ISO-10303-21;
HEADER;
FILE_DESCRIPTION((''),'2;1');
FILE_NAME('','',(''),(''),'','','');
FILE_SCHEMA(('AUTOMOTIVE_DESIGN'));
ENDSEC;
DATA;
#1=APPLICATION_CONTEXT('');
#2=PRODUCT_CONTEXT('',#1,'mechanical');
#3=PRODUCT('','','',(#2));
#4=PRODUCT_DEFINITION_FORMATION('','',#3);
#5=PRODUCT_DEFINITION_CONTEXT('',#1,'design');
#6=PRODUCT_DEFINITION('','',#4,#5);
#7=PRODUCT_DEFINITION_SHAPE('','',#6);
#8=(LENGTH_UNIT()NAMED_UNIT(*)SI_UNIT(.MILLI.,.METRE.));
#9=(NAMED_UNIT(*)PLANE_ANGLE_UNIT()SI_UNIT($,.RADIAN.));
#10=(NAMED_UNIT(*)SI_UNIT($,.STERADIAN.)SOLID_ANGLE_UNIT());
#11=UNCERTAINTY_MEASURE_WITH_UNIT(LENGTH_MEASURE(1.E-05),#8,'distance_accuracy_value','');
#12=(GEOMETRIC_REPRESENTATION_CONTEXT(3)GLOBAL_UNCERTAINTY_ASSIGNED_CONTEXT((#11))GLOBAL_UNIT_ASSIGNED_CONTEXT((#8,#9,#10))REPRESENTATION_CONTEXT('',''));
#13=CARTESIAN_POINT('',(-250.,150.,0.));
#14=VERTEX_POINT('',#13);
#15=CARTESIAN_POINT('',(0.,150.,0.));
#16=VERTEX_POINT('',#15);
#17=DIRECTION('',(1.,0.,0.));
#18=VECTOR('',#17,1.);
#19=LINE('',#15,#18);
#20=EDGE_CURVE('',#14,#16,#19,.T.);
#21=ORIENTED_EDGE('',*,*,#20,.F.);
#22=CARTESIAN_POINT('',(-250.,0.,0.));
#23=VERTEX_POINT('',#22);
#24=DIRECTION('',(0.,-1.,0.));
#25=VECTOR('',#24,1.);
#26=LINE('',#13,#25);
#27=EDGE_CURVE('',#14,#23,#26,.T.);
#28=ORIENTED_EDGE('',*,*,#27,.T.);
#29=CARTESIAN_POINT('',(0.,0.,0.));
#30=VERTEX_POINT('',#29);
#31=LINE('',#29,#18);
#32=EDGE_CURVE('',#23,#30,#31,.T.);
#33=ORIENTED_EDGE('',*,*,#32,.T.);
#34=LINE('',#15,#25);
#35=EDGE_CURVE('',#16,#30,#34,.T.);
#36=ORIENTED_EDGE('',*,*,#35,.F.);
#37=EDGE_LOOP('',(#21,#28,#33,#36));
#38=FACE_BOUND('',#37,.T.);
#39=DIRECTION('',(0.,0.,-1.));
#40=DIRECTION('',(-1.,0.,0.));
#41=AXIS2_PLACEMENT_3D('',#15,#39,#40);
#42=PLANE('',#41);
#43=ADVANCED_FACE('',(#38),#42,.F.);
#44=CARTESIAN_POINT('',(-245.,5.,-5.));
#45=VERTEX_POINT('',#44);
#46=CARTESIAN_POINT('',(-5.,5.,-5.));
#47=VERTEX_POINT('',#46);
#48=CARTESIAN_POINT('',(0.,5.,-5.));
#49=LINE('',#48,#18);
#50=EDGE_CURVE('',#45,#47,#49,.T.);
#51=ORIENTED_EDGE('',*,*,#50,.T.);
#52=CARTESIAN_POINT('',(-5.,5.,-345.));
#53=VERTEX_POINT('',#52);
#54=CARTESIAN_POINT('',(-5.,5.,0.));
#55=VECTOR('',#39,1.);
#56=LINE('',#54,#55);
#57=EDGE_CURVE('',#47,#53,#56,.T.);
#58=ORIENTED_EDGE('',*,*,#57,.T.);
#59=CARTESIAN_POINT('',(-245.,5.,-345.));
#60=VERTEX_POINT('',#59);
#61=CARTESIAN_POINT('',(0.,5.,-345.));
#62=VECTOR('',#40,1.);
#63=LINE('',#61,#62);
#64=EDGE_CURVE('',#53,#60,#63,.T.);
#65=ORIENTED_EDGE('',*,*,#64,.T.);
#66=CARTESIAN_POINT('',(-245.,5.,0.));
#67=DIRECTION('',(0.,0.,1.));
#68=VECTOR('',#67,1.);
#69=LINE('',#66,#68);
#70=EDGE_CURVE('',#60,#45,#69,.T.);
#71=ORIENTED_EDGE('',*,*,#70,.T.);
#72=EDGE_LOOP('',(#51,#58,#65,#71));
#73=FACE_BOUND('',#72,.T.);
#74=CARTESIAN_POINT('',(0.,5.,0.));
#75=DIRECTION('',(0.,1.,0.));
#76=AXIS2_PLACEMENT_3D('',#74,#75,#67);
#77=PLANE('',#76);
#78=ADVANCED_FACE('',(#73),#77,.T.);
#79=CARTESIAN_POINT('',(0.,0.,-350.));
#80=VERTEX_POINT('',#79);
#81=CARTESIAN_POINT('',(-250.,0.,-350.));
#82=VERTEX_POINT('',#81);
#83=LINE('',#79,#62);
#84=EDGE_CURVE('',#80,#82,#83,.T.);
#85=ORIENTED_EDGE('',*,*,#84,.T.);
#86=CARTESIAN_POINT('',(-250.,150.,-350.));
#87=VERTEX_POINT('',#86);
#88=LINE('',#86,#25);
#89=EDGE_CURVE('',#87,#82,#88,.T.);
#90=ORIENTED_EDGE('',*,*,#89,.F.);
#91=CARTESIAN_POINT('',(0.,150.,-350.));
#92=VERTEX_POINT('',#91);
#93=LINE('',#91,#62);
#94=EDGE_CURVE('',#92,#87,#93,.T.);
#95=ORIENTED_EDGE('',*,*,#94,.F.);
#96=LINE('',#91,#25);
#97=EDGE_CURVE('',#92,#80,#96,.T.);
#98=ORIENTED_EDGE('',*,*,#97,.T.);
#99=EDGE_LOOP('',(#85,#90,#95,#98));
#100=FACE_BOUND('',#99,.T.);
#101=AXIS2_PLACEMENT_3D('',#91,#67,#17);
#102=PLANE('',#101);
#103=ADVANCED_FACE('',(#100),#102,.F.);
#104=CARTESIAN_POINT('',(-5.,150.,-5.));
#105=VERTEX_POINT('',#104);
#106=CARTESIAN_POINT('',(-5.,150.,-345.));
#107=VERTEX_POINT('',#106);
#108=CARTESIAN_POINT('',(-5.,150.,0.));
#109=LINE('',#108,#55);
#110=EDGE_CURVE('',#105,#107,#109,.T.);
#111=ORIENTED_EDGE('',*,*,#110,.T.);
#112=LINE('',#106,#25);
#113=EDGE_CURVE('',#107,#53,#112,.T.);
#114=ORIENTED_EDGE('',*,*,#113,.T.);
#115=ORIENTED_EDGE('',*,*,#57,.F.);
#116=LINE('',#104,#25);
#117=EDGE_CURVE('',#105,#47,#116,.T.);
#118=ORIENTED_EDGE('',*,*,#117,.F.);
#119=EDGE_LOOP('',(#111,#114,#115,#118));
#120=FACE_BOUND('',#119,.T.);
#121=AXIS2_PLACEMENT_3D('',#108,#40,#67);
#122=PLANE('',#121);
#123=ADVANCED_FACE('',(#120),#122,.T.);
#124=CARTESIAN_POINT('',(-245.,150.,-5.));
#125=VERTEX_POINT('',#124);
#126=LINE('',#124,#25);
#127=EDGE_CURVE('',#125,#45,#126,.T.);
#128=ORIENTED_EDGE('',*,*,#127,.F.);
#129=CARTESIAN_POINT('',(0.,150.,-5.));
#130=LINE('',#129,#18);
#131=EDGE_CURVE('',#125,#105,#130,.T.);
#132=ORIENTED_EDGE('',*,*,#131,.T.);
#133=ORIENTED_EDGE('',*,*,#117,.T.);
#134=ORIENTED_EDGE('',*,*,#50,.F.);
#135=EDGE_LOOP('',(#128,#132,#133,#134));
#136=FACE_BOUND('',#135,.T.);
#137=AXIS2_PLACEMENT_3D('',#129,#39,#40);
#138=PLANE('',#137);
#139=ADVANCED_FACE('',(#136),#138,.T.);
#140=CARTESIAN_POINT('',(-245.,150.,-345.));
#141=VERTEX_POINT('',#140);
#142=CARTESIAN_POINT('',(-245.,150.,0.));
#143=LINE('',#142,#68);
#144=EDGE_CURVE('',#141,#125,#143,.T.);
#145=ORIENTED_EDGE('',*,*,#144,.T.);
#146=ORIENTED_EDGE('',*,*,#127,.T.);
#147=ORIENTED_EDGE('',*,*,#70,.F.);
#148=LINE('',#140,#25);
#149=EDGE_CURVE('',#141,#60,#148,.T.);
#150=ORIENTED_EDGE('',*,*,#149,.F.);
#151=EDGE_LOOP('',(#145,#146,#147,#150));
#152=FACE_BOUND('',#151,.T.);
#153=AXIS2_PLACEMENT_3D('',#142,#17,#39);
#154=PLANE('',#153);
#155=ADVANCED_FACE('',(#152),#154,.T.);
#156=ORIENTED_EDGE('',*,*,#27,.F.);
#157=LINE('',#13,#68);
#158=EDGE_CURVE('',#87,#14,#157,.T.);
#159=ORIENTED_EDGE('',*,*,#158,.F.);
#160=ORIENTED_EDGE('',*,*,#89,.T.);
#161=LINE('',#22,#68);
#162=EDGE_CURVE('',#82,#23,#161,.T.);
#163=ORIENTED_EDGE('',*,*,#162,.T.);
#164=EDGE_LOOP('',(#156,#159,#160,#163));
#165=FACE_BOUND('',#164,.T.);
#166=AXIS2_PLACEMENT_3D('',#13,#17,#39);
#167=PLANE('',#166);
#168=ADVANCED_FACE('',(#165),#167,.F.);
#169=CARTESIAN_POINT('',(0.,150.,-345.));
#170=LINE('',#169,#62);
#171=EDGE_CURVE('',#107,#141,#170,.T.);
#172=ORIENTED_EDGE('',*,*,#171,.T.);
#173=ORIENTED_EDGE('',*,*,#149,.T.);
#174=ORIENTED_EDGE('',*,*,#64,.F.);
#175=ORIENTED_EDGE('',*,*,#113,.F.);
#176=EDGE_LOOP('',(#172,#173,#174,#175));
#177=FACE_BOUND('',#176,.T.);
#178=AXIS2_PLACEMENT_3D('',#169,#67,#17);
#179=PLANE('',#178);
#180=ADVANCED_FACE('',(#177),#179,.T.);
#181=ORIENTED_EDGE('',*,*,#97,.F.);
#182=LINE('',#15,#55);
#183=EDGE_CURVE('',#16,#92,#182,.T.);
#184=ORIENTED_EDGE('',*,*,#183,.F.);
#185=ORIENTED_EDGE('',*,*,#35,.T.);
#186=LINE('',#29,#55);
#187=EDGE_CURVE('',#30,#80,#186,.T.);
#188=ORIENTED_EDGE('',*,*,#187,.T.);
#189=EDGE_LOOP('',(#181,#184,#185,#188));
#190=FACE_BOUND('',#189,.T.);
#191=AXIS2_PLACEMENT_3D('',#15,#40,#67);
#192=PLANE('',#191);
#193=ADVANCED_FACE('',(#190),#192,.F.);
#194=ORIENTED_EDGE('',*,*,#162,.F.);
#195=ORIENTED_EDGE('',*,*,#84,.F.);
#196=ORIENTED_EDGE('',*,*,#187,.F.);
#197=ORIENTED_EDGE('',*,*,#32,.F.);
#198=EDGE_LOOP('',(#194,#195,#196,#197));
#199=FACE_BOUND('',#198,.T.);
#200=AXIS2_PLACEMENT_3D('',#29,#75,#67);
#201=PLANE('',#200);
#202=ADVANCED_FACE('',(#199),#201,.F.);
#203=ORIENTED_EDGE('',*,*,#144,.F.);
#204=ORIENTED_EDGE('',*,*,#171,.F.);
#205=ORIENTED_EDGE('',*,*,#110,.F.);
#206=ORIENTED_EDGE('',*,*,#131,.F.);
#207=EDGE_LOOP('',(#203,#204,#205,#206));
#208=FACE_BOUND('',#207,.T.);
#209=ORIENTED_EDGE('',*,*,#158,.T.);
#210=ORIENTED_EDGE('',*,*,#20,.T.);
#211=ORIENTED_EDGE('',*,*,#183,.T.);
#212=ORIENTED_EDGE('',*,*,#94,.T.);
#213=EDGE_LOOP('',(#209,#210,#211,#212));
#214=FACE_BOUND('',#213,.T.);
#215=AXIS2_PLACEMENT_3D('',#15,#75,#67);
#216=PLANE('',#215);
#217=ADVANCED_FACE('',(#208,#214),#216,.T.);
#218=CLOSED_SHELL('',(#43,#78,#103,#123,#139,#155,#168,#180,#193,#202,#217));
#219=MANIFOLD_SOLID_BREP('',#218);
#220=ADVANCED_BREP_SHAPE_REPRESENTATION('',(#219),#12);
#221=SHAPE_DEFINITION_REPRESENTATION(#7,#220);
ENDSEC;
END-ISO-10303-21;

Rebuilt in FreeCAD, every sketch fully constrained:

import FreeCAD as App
import Part
import Sketcher
from FreeCAD import Vector
Q = App.Units.Quantity


def faces_at(feature, points):
    """Names of the faces that lie closest to the given points."""
    faces = feature.Shape.Faces
    near = lambda p: min(range(len(faces)), key=lambda i: faces[i].distToShape(Part.Vertex(*p))[0])
    return sorted({f"Face{near(p) + 1}" for p in points})


def add_polygon(sketch, points):
    """Adds a closed chain of lines whose ends are joined by coincident constraints."""
    first, n = sketch.GeometryCount, len(points)
    for a, b in zip(points, points[1:] + points[:1]):
        sketch.addGeometry(Part.LineSegment(App.Vector(*a, 0), App.Vector(*b, 0)), False)
    for i in range(n):
        sketch.addConstraint(Sketcher.Constraint("Coincident", first + i, 2, first + (i + 1) % n, 1))

doc = App.newDocument("Part")
body = doc.addObject("PartDesign::Body", "Body")

# Sketch on XZ plane
sketch1 = doc.addObject("Sketcher::SketchObject", "Sketch")
body.addObject(sketch1)
sketch1.AttachmentSupport = (doc.XZ_Plane, [""])
sketch1.MapMode = "FlatFace"
add_polygon(sketch1, [(-250, -350), (-250, 0), (0, 0), (0, -350)])  # lines 0-3
sketch1.addConstraint([
    Sketcher.Constraint("Vertical", 0),
    Sketcher.Constraint("Horizontal", 1),
    Sketcher.Constraint("Vertical", 2),
    Sketcher.Constraint("Horizontal", 3),
    Sketcher.Constraint("Coincident", 1, 2, -1, 1),
    Sketcher.Constraint("DistanceX", 1, 1, 1, 2, Q("250 mm")),
    Sketcher.Constraint("DistanceY", 0, 1, 0, 2, Q("350 mm")),
])
pad1 = doc.addObject("PartDesign::Pad", "Pad")
body.addObject(pad1)
pad1.Profile = sketch1
pad1.Length = 150
pad1.Reversed = True
doc.recompute()

thickness = doc.addObject("PartDesign::Thickness", "Thickness")
body.addObject(thickness)
thickness.Base = (pad1, faces_at(pad1, [(-125, 150, -175)]))
thickness.Value = 5
thickness.Reversed = True
thickness.Join = "Intersection"

doc.recompute()
